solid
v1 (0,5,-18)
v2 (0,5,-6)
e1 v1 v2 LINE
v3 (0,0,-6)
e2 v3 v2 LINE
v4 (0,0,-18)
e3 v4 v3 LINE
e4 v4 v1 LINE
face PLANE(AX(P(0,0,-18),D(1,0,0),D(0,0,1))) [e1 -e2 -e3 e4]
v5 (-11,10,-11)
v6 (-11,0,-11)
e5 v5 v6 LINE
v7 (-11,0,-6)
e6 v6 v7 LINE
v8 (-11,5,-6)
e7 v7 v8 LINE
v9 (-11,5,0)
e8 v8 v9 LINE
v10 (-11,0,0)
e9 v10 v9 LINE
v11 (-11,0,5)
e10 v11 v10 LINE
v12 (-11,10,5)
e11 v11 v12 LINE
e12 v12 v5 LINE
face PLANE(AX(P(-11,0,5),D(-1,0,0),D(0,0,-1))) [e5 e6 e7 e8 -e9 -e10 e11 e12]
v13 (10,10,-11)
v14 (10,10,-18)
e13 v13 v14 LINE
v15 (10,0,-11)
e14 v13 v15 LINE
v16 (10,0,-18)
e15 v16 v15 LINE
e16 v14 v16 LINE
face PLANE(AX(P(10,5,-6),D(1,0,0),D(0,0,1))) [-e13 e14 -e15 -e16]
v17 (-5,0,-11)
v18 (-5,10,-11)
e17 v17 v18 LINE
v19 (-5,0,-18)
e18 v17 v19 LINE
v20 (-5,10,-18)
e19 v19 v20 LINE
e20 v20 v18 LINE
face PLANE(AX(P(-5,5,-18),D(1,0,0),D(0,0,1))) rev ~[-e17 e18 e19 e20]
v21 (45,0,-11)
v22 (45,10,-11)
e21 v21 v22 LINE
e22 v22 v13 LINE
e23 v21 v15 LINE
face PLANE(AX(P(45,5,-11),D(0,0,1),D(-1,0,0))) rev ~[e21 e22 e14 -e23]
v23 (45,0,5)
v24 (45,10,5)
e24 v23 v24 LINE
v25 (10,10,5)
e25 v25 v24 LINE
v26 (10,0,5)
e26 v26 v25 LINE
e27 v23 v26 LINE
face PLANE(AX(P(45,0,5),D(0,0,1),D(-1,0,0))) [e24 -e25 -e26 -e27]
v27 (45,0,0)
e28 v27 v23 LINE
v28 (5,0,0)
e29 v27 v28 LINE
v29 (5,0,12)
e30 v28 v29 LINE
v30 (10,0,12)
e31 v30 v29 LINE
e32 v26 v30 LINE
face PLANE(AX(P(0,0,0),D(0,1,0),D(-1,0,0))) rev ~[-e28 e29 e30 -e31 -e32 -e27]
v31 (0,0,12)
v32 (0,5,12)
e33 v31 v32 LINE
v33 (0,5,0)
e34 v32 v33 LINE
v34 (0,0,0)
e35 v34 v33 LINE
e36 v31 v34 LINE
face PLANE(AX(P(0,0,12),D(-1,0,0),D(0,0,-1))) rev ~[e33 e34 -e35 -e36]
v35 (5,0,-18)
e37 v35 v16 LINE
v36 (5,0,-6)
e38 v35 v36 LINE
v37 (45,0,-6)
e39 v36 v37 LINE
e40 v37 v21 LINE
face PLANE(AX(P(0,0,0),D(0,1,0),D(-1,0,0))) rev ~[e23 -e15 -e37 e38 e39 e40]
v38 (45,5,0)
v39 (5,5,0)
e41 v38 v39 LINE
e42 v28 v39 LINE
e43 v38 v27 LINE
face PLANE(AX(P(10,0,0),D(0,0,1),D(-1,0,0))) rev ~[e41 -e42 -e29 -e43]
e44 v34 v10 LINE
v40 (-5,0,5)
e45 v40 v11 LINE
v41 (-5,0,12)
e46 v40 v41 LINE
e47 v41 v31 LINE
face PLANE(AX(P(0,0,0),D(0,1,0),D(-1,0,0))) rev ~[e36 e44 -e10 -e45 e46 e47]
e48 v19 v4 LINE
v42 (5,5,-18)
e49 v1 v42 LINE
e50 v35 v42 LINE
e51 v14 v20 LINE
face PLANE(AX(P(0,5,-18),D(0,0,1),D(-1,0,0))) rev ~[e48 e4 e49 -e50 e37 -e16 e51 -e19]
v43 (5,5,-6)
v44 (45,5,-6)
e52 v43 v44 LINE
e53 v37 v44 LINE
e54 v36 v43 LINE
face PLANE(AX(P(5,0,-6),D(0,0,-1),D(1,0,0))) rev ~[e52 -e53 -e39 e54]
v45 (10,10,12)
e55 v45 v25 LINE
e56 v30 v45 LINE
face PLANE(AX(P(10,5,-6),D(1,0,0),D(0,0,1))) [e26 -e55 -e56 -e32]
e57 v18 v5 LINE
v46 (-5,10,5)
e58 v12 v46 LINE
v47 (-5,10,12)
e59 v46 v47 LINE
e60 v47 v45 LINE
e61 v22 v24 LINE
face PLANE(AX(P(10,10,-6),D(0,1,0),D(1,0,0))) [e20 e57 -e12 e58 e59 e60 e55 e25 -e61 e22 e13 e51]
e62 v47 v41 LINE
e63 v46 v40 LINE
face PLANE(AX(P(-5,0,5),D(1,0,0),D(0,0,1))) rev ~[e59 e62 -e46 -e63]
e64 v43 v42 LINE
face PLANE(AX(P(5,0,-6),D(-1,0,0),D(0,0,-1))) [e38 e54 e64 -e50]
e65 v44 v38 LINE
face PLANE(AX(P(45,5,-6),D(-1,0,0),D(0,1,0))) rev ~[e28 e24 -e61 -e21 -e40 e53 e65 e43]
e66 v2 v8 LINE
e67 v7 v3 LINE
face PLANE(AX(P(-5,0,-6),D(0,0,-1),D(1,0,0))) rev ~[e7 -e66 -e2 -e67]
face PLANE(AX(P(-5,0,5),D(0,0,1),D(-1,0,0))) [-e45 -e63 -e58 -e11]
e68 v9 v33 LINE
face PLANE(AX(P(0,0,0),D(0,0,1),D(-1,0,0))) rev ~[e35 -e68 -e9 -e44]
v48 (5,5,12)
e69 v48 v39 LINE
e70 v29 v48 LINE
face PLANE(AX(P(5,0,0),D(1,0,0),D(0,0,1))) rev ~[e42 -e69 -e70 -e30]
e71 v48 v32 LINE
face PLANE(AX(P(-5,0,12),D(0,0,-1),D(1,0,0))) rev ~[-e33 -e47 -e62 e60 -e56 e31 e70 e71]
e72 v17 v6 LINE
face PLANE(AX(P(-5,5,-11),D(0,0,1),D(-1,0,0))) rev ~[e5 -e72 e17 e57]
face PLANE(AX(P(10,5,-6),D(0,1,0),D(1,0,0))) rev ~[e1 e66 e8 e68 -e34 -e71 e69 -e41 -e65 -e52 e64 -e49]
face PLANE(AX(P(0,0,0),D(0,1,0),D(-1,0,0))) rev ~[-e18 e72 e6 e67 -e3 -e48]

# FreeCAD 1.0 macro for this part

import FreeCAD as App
import Part
import Sketcher
Q = App.Units.Quantity


def add_polygon(sketch, points):
    """Adds a closed chain of lines whose ends are joined by coincident constraints."""
    first, n = sketch.GeometryCount, len(points)
    for a, b in zip(points, points[1:] + points[:1]):
        sketch.addGeometry(Part.LineSegment(App.Vector(*a, 0), App.Vector(*b, 0)), False)
    for i in range(n):
        sketch.addConstraint(Sketcher.Constraint("Coincident", first + i, 2, first + (i + 1) % n, 1))

doc = App.newDocument("Part")
body = doc.addObject("PartDesign::Body", "Body")
body.AllowCompound = True

# Sketch on XZ plane
sketch1 = body.newObject("Sketcher::SketchObject", "Sketch")
sketch1.AttachmentSupport = (doc.getObject("XZ_Plane"), [""])
sketch1.MapMode = "FlatFace"
add_polygon(sketch1, [(0, 12), (0, 0), (-11, 0), (-11, 5), (-5, 5), (-5, 12)])  # lines 0-5
add_polygon(sketch1, [(0, -6), (0, -18), (-5, -18), (-5, -11), (-11, -11), (-11, -6)])  # lines 6-11
add_polygon(sketch1, [(5, 0), (5, 12), (10, 12), (10, 5), (45, 5), (45, 0)])  # lines 12-17
add_polygon(sketch1, [(5, -6), (45, -6), (45, -11), (10, -11), (10, -18), (5, -18)])  # lines 18-23
sketch1.addConstraint([
    Sketcher.Constraint("Vertical", 0),
    Sketcher.Constraint("Horizontal", 1),
    Sketcher.Constraint("Vertical", 2),
    Sketcher.Constraint("Horizontal", 3),
    Sketcher.Constraint("Vertical", 4),
    Sketcher.Constraint("Horizontal", 5),
    Sketcher.Constraint("Vertical", 6),
    Sketcher.Constraint("Horizontal", 7),
    Sketcher.Constraint("Vertical", 8),
    Sketcher.Constraint("Horizontal", 9),
    Sketcher.Constraint("Vertical", 10),
    Sketcher.Constraint("Horizontal", 11),
    Sketcher.Constraint("Vertical", 12),
    Sketcher.Constraint("Horizontal", 13),
    Sketcher.Constraint("Vertical", 14),
    Sketcher.Constraint("Horizontal", 15),
    Sketcher.Constraint("Vertical", 16),
    Sketcher.Constraint("Horizontal", 17),
    Sketcher.Constraint("Horizontal", 18),
    Sketcher.Constraint("Vertical", 19),
    Sketcher.Constraint("Horizontal", 20),
    Sketcher.Constraint("Vertical", 21),
    Sketcher.Constraint("Horizontal", 22),
    Sketcher.Constraint("Vertical", 23),
    Sketcher.Constraint("Coincident", 0, 2, -1, 1),
    Sketcher.Constraint("Symmetric", 4, 2, 12, 2, -2),
    Sketcher.Constraint("Symmetric", 7, 2, 22, 2, -2),
    Sketcher.Constraint("PointOnObject", 6, 2, -2),
    Sketcher.Constraint("PointOnObject", 16, 2, -1),
    Sketcher.Constraint("Horizontal", 3, 2, 14, 2),
    Sketcher.Constraint("Horizontal", 11, 2, 18, 2),
    Sketcher.Constraint("Horizontal", 9, 2, 19, 2),
    Sketcher.Constraint("Vertical", 4, 2, 7, 2),
    Sketcher.Constraint("Vertical", 2, 2, 9, 2),
    Sketcher.Constraint("Vertical", 16, 2, 18, 2),
    Sketcher.Constraint("Vertical", 14, 2, 20, 2),
    Sketcher.Constraint("Equal", 7, 13),
    Sketcher.Constraint("Equal", 22, 2),
    Sketcher.Constraint("Equal", 0, 6),
    Sketcher.Constraint("Equal", 4, 8),
    Sketcher.Constraint("DistanceX", 1, 2, 1, 1, Q("11 mm")),
    Sketcher.Constraint("DistanceX", 3, 1, 3, 2, Q("6 mm")),
    Sketcher.Constraint("DistanceX", 17, 2, 17, 1, Q("40 mm")),
    Sketcher.Constraint("DistanceY", 0, 2, 0, 1, Q("12 mm")),
    Sketcher.Constraint("DistanceY", 8, 2, -1, 1, Q("11 mm")),
])
pad1 = body.newObject("PartDesign::Pad", "Pad")
pad1.Profile = sketch1
pad1.Length = 5
pad1.Reversed = True

# Sketch on XZ plane
sketch2 = body.newObject("Sketcher::SketchObject", "Sketch001")
sketch2.AttachmentSupport = (doc.getObject("XZ_Plane"), [""])
sketch2.MapMode = "FlatFace"
sketch2.AttachmentOffset = App.Placement(App.Vector(0, 0, -5), App.Rotation())
add_polygon(sketch2, [(-11, -11), (-11, 5), (-5, 5), (-5, 12), (10, 12), (10, -18), (-5, -18), (-5, -11)])  # lines 0-7
sketch2.addConstraint([
    Sketcher.Constraint("Vertical", 0),
    Sketcher.Constraint("Horizontal", 1),
    Sketcher.Constraint("Vertical", 2),
    Sketcher.Constraint("Horizontal", 3),
    Sketcher.Constraint("Vertical", 4),
    Sketcher.Constraint("Horizontal", 5),
    Sketcher.Constraint("Vertical", 6),
    Sketcher.Constraint("Horizontal", 7),
    Sketcher.Constraint("Vertical", 2, 2, 5, 2),
    Sketcher.Constraint("Equal", 2, 6),
    Sketcher.Constraint("DistanceX", 1, 1, 1, 2, Q("6 mm")),
    Sketcher.Constraint("DistanceX", 3, 1, 3, 2, Q("15 mm")),
    Sketcher.Constraint("DistanceY", 0, 1, 0, 2, Q("16 mm")),
    Sketcher.Constraint("DistanceY", 2, 1, 2, 2, Q("7 mm")),
    Sketcher.Constraint("DistanceX", 0, 2, -1, 1, Q("11 mm")),
    Sketcher.Constraint("DistanceY", -1, 1, 0, 2, Q("5 mm")),
])
pad2 = body.newObject("PartDesign::Pad", "Pad001")
pad2.Profile = sketch2
pad2.Length = 5
pad2.Reversed = True

# Sketch on XZ plane
sketch3 = body.newObject("Sketcher::SketchObject", "Sketch002")
sketch3.AttachmentSupport = (doc.getObject("XZ_Plane"), [""])
sketch3.MapMode = "FlatFace"
sketch3.AttachmentOffset = App.Placement(App.Vector(0, 0, -5), App.Rotation())
add_polygon(sketch3, [(45, 0), (10, 0), (10, 5), (45, 5)])  # lines 0-3
add_polygon(sketch3, [(45, -11), (10, -11), (10, -6), (45, -6)])  # lines 4-7
sketch3.addConstraint([
    Sketcher.Constraint("Horizontal", 0),
    Sketcher.Constraint("Vertical", 1),
    Sketcher.Constraint("Horizontal", 2),
    Sketcher.Constraint("Vertical", 3),
    Sketcher.Constraint("Horizontal", 4),
    Sketcher.Constraint("Vertical", 5),
    Sketcher.Constraint("Horizontal", 6),
    Sketcher.Constraint("Vertical", 7),
    Sketcher.Constraint("PointOnObject", 0, 2, -1),
    Sketcher.Constraint("Vertical", 1, 2, 4, 2),
    Sketcher.Constraint("Vertical", 3, 2, 6, 2),
    Sketcher.Constraint("Equal", 3, 5),
    Sketcher.Constraint("DistanceX", 0, 2, 0, 1, Q("35 mm")),
    Sketcher.Constraint("DistanceY", 1, 1, 1, 2, Q("5 mm")),
    Sketcher.Constraint("DistanceX", -1, 1, 0, 2, Q("10 mm")),
    Sketcher.Constraint("DistanceY", 4, 2, -1, 1, Q("11 mm")),
])
pad3 = body.newObject("PartDesign::Pad", "Pad002")
pad3.Profile = sketch3
pad3.Length = 5
pad3.Reversed = True

# Sketch on XY plane
sketch4 = body.newObject("Sketcher::SketchObject", "Sketch003")
sketch4.AttachmentSupport = (doc.getObject("XY_Plane"), [""])
sketch4.MapMode = "FlatFace"
sketch4.AttachmentOffset = App.Placement(App.Vector(0, 0, -6), App.Rotation())
add_polygon(sketch4, [(10, 5), (45, 5), (45, 10), (10, 10)])  # lines 0-3
sketch4.addConstraint([
    Sketcher.Constraint("Horizontal", 0),
    Sketcher.Constraint("Vertical", 1),
    Sketcher.Constraint("Horizontal", 2),
    Sketcher.Constraint("Vertical", 3),
    Sketcher.Constraint("DistanceY", 1, 1, 1, 2, Q("5 mm")),
    Sketcher.Constraint("DistanceY", -1, 1, 0, 2, Q("5 mm")),
    Sketcher.Constraint("DistanceX", 0, 1, 0, 2, Q("35 mm")),
    Sketcher.Constraint("DistanceX", -1, 1, 0, 2, Q("45 mm")),
])
pad4 = body.newObject("PartDesign::Pad", "Pad003")
pad4.Profile = sketch4
pad4.Length = 6

doc.recompute()
